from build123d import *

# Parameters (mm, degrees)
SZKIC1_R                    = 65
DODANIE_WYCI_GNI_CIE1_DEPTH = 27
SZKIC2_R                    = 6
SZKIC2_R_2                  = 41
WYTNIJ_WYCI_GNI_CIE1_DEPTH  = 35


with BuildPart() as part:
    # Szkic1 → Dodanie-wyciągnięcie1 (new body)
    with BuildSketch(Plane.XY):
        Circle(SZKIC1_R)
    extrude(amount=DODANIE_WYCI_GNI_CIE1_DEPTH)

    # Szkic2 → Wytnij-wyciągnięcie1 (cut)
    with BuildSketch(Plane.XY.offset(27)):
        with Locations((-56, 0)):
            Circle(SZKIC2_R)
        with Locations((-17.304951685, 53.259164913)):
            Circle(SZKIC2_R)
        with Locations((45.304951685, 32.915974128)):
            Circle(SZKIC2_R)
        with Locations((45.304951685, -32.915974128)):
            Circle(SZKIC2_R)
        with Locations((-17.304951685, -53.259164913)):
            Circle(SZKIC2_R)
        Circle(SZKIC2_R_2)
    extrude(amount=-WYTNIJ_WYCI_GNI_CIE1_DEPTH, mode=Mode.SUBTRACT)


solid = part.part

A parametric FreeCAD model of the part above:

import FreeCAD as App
import Part
import Sketcher
from FreeCAD import Vector
Q = App.Units.Quantity

doc = App.newDocument("Part")
params = doc.addObject("Spreadsheet::Sheet", "Params")
for row, (alias, value) in enumerate([
    ("sketch1_diameter", "130 mm"),
    ("pad1_length", "27 mm"),
    ("sketch2_diameter", "12 mm"),
    ("sketch2_diameter2", "82 mm"),
    ("pocket1_length", "35 mm"),
], start=1):
    params.set(f"A{row}", alias)
    params.set(f"B{row}", "=" + value)
    params.setAlias(f"B{row}", alias)

body = doc.addObject("PartDesign::Body", "Body")

sketch1 = doc.addObject("Sketcher::SketchObject", "Sketch")
body.addObject(sketch1)
sketch1.AttachmentSupport = (doc.XY_Plane, [""])
sketch1.MapMode = "FlatFace"
sketch1.addGeometry(Part.Circle(Vector(0, 0, 0), Vector(0, 0, 1), 65), False)
sketch1.addConstraint(Sketcher.Constraint("Coincident", 0, 3, -1, 1))
sketch1.addConstraint(Sketcher.Constraint("Diameter", 0, Q("130 mm")))
sketch1.setExpression("Constraints[1]", "Params.sketch1_diameter")
pad1 = doc.addObject("PartDesign::Pad", "Pad")
body.addObject(pad1)
pad1.Profile = sketch1
pad1.setExpression("Length", "Params.pad1_length")

sketch2 = doc.addObject("Sketcher::SketchObject", "Sketch001")
body.addObject(sketch2)
sketch2.AttachmentSupport = (doc.XY_Plane, [""])
sketch2.MapMode = "FlatFace"
sketch2.AttachmentOffset = App.Placement(Vector(0, 0, 27), App.Rotation())
sketch2.addGeometry(Part.Circle(Vector(-56, 0, 0), Vector(0, 0, 1), 6), False)
sketch2.addGeometry(Part.Circle(Vector(-17.304952, 53.259165, 0), Vector(0, 0, 1), 6), False)
sketch2.addGeometry(Part.Circle(Vector(45.304952, 32.915974, 0), Vector(0, 0, 1), 6), False)
sketch2.addGeometry(Part.Circle(Vector(45.304952, -32.915974, 0), Vector(0, 0, 1), 6), False)
sketch2.addGeometry(Part.Circle(Vector(-17.304952, -53.259165, 0), Vector(0, 0, 1), 6), False)
sketch2.addGeometry(Part.Circle(Vector(0, 0, 0), Vector(0, 0, 1), 41), False)
sketch2.addConstraint(Sketcher.Constraint("Coincident", 5, 3, -1, 1))
sketch2.addConstraint(Sketcher.Constraint("Equal", 0, 1))
sketch2.addConstraint(Sketcher.Constraint("Equal", 1, 2))
sketch2.addConstraint(Sketcher.Constraint("Equal", 2, 3))
sketch2.addConstraint(Sketcher.Constraint("Equal", 3, 4))
sketch2.addConstraint(Sketcher.Constraint("Symmetric", 2, 3, 3, 3, -1))
sketch2.addConstraint(Sketcher.Constraint("Symmetric", 1, 3, 4, 3, -1))
sketch2.addConstraint(Sketcher.Constraint("PointOnObject", 0, 3, -1))
sketch2.addConstraint(Sketcher.Constraint("Diameter", 0, Q("12 mm")))
sketch2.addConstraint(Sketcher.Constraint("Diameter", 5, Q("82 mm")))
sketch2.addConstraint(Sketcher.Constraint("DistanceX", 0, 3, -1, 1, Q("56 mm")))
sketch2.addConstraint(Sketcher.Constraint("DistanceX", 1, 3, -1, 1, Q("17.304952 mm")))
sketch2.addConstraint(Sketcher.Constraint("DistanceX", -1, 1, 2, 3, Q("45.304952 mm")))
sketch2.addConstraint(Sketcher.Constraint("DistanceY", 2, 3, 1, 3, Q("20.343191 mm")))
sketch2.addConstraint(Sketcher.Constraint("DistanceY", 3, 3, 2, 3, Q("65.831948 mm")))
sketch2.setExpression("Constraints[8]", "Params.sketch2_diameter")
sketch2.setExpression("Constraints[9]", "Params.sketch2_diameter2")
pocket1 = doc.addObject("PartDesign::Pocket", "Pocket")
body.addObject(pocket1)
pocket1.Profile = sketch2
pocket1.setExpression("Length", "Params.pocket1_length")

doc.recompute()
